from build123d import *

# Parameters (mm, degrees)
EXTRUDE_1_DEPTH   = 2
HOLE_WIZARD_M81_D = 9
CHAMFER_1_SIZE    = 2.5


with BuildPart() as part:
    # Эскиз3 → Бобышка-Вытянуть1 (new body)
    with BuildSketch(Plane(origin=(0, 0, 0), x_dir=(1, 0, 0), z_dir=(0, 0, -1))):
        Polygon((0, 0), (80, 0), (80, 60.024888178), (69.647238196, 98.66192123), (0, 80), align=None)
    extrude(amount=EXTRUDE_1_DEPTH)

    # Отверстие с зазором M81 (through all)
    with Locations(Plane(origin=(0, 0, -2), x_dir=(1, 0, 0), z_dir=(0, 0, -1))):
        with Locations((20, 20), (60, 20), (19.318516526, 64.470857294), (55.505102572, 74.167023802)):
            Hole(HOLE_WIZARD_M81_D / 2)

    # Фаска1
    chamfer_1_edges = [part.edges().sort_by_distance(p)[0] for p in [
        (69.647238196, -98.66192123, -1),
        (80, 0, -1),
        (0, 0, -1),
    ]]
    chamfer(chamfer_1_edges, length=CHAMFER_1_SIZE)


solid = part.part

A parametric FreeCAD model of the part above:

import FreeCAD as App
import Part
import Sketcher
Q = App.Units.Quantity


def edges_at(feature, points):
    """Names of the edges that pass closest to the given points."""
    edges = feature.Shape.Edges
    near = lambda p: min(range(len(edges)), key=lambda i: edges[i].distToShape(Part.Vertex(*p))[0])
    return sorted({f"Edge{near(p) + 1}" for p in points})


def add_polygon(sketch, points):
    """Adds a closed chain of lines whose ends are joined by coincident constraints."""
    first, n = sketch.GeometryCount, len(points)
    for a, b in zip(points, points[1:] + points[:1]):
        sketch.addGeometry(Part.LineSegment(App.Vector(*a, 0), App.Vector(*b, 0)), False)
    for i in range(n):
        sketch.addConstraint(Sketcher.Constraint("Coincident", first + i, 2, first + (i + 1) % n, 1))

doc = App.newDocument("Part")
body = doc.addObject("PartDesign::Body", "Body")

# Sketch on XY plane
sketch1 = doc.addObject("Sketcher::SketchObject", "Sketch")
body.addObject(sketch1)
sketch1.AttachmentSupport = (doc.XY_Plane, [""])
sketch1.MapMode = "FlatFace"
add_polygon(sketch1, [(0, 0), (80, 0), (80, -60), (70, -99), (0, -80)])  # lines 0-4
sketch1.addConstraint(Sketcher.Constraint("Horizontal", 0))
sketch1.addConstraint(Sketcher.Constraint("Vertical", 1))
sketch1.addConstraint(Sketcher.Constraint("Vertical", 4))
sketch1.addConstraint(Sketcher.Constraint("Coincident", 4, 2, -1, 1))
sketch1.addConstraint(Sketcher.Constraint("Perpendicular", 2, 3))
sketch1.addConstraint(Sketcher.Constraint("Equal", 0, 4))
sketch1.addConstraint(Sketcher.Constraint("DistanceX", 0, 1, 0, 2, Q("80 mm")))
sketch1.addConstraint(Sketcher.Constraint("Angle", 2, Q("-105 deg")))
sketch1.addConstraint(Sketcher.Constraint("Distance", 2, Q("40 mm")))
pad1 = doc.addObject("PartDesign::Pad", "Pad")
body.addObject(pad1)
pad1.Profile = sketch1
pad1.Length = 2
pad1.Reversed = True

# Sketch on XY plane
sketch2 = doc.addObject("Sketcher::SketchObject", "Sketch001")
body.addObject(sketch2)
sketch2.AttachmentSupport = (doc.XY_Plane, [""])
sketch2.MapMode = "FlatFace"
sketch2.AttachmentOffset = App.Placement(App.Vector(0, 0, -2), App.Rotation())
sketch2.addGeometry(Part.Circle(App.Vector(20, -20, 0), App.Vector(0, 0, 1), 4.5), False)
sketch2.addGeometry(Part.Circle(App.Vector(60, -20, 0), App.Vector(0, 0, 1), 4.5), False)
sketch2.addGeometry(Part.Circle(App.Vector(19.3, -64.5, 0), App.Vector(0, 0, 1), 4.5), False)
sketch2.addGeometry(Part.Circle(App.Vector(55.5, -74.2, 0), App.Vector(0, 0, 1), 4.5), False)
sketch2.addConstraint(Sketcher.Constraint("Equal", 0, 1))
sketch2.addConstraint(Sketcher.Constraint("Equal", 1, 2))
sketch2.addConstraint(Sketcher.Constraint("Equal", 2, 3))
sketch2.addConstraint(Sketcher.Constraint("Horizontal", 0, 3, 1, 3))
sketch2.addConstraint(Sketcher.Constraint("Diameter", 0, Q("9 mm")))
sketch2.addConstraint(Sketcher.Constraint("DistanceX", -1, 1, 0, 3, Q("20 mm")))
sketch2.addConstraint(Sketcher.Constraint("DistanceY", 0, 3, -1, 1, Q("20 mm")))
sketch2.addConstraint(Sketcher.Constraint("DistanceX", -1, 1, 1, 3, Q("60 mm")))
sketch2.addConstraint(Sketcher.Constraint("DistanceX", -1, 1, 2, 3, Q("19.318517 mm")))
sketch2.addConstraint(Sketcher.Constraint("DistanceY", 2, 3, -1, 1, Q("64.470857 mm")))
sketch2.addConstraint(Sketcher.Constraint("DistanceX", -1, 1, 3, 3, Q("55.505103 mm")))
sketch2.addConstraint(Sketcher.Constraint("DistanceY", 3, 3, -1, 1, Q("74.167024 mm")))
doc.recompute()
hole = doc.addObject("PartDesign::Hole", "Hole")
body.addObject(hole)
hole.Profile = sketch2
hole.ThreadType = "None"
hole.Diameter = 9
hole.DepthType = "ThroughAll"
hole.Reversed = True
doc.recompute()

chamfer = doc.addObject("PartDesign::Chamfer", "Chamfer")
body.addObject(chamfer)
chamfer.Base = (hole, edges_at(hole, [(69.647, -98.662, -1), (80, 0, -1), (0, 0, -1)]))
chamfer.Size = 2.5

doc.recompute()
